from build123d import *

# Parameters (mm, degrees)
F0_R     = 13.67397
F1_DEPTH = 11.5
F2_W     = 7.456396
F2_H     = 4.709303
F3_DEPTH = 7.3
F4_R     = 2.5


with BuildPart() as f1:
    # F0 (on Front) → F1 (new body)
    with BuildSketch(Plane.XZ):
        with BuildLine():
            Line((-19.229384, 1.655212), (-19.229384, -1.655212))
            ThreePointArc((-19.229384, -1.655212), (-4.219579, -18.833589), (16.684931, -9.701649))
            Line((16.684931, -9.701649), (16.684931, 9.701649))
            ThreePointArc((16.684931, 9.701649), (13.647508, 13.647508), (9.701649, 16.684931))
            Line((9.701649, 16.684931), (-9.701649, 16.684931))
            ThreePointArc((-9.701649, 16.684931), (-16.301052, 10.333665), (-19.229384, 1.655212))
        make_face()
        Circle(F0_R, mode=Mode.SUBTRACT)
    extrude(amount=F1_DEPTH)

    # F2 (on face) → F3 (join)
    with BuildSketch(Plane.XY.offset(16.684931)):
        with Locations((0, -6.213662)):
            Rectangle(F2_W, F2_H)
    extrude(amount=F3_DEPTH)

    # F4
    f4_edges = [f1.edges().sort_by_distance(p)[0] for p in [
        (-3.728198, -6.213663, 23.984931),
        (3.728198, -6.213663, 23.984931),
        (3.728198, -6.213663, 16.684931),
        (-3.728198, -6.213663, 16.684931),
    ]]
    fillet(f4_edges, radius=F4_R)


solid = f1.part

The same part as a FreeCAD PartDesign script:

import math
import FreeCAD as App
import Part
import Sketcher
from FreeCAD import Vector


def edges_at(feature, points):
    """Names of the edges that pass closest to the given points."""
    edges = feature.Shape.Edges
    near = lambda p: min(range(len(edges)), key=lambda i: edges[i].distToShape(Part.Vertex(*p))[0])
    return sorted({f"Edge{near(p) + 1}" for p in points})


def add_polygon(sketch, points):
    """Adds a closed chain of lines whose ends are joined by coincident constraints."""
    first, n = sketch.GeometryCount, len(points)
    for a, b in zip(points, points[1:] + points[:1]):
        sketch.addGeometry(Part.LineSegment(App.Vector(*a, 0), App.Vector(*b, 0)), False)
    for i in range(n):
        sketch.addConstraint(Sketcher.Constraint("Coincident", first + i, 2, first + (i + 1) % n, 1))

doc = App.newDocument("Part")
body = doc.addObject("PartDesign::Body", "Body")

# Sketch on XZ plane
sketch1 = body.newObject("Sketcher::SketchObject", "Sketch")
sketch1.AttachmentSupport = (doc.getObject("XZ_Plane"), [""])
sketch1.MapMode = "FlatFace"
sketch1.addGeometry([
    Part.LineSegment(Vector(-19.2, 1.7, 0), Vector(-19.2, -1.7, 0)),  # 0
    Part.ArcOfCircle(Part.Circle(Vector(0, 0, 0), Vector(0, 0, 1), 19.3), math.radians(-175), math.radians(-30)),  # 1
    Part.LineSegment(Vector(16.7, -9.7, 0), Vector(16.7, 9.7, 0)),  # 2
    Part.ArcOfCircle(Part.Circle(Vector(0, 0, 0), Vector(0, 0, 1), 19.3), math.radians(30), math.radians(60)),  # 3
    Part.LineSegment(Vector(9.7, 16.7, 0), Vector(-9.7, 16.7, 0)),  # 4
    Part.ArcOfCircle(Part.Circle(Vector(0, 0, 0), Vector(0, 0, 1), 19.3), math.radians(120), math.radians(175)),  # 5
    Part.Circle(Vector(0, 0, 0), Vector(0, 0, 1), 13.7),  # 6
], False)
sketch1.addConstraint([
    Sketcher.Constraint("Coincident", 0, 2, 1, 1),
    Sketcher.Constraint("Coincident", 1, 2, 2, 1),
    Sketcher.Constraint("Coincident", 2, 2, 3, 1),
    Sketcher.Constraint("Coincident", 3, 2, 4, 1),
    Sketcher.Constraint("Coincident", 4, 2, 5, 1),
    Sketcher.Constraint("Coincident", 5, 2, 0, 1),
    Sketcher.Constraint("Vertical", 0),
    Sketcher.Constraint("Vertical", 2),
    Sketcher.Constraint("Horizontal", 4),
    Sketcher.Constraint("Coincident", 1, 3, -1, 1),
    Sketcher.Constraint("Coincident", 5, 3, -1, 1),
    Sketcher.Constraint("Coincident", 6, 3, -1, 1),
    Sketcher.Constraint("Equal", 1, 5),
    Sketcher.Constraint("Equal", 4, 2),
    Sketcher.Constraint("Diameter", 6, 27.34794),
    Sketcher.Constraint("Radius", 1, 19.30049),
    Sketcher.Constraint("Radius", 3, 19.300465),
    Sketcher.Constraint("DistanceY", 1, 2, 2, 2, 19.403298),
    Sketcher.Constraint("DistanceY", 0, 2, 0, 1, 3.310424),
    Sketcher.Constraint("DistanceX", -1, 1, 1, 2, 16.684931),
    Sketcher.Constraint("DistanceX", -1, 1, 3, 2, 9.701649),
])
pad1 = body.newObject("PartDesign::Pad", "Pad")
pad1.Profile = sketch1
pad1.Length = 11.5

# Sketch on XY plane
sketch2 = body.newObject("Sketcher::SketchObject", "Sketch001")
sketch2.AttachmentSupport = (doc.getObject("XY_Plane"), [""])
sketch2.MapMode = "FlatFace"
sketch2.AttachmentOffset = App.Placement(Vector(0, 0, 16.684931), App.Rotation())
add_polygon(sketch2, [(-3.7, -3.9), (-3.7, -8.6), (3.7, -8.6), (3.7, -3.9)])  # lines 0-3
sketch2.addConstraint([
    Sketcher.Constraint("Vertical", 0),
    Sketcher.Constraint("Horizontal", 1),
    Sketcher.Constraint("Vertical", 2),
    Sketcher.Constraint("Horizontal", 3),
    Sketcher.Constraint("DistanceX", 1, 1, 1, 2, 7.456396),
    Sketcher.Constraint("DistanceY", 0, 2, 0, 1, 4.709303),
    Sketcher.Constraint("DistanceY", 2, 2, -1, 1, 3.859011),
    Sketcher.Constraint("DistanceX", 0, 2, -1, 1, 3.728198),
])
pad2 = body.newObject("PartDesign::Pad", "Pad001")
pad2.Profile = sketch2
pad2.Length = 7.3
doc.recompute()

fillet = body.newObject("PartDesign::Fillet", "Fillet")
fillet.Base = (pad2, edges_at(pad2, [
    (-3.728, -6.214, 23.985),
    (3.728, -6.214, 23.985),
    (3.728, -6.214, 16.685),
    (-3.728, -6.214, 16.685),
]))
fillet.Radius = 2.5

doc.recompute()
